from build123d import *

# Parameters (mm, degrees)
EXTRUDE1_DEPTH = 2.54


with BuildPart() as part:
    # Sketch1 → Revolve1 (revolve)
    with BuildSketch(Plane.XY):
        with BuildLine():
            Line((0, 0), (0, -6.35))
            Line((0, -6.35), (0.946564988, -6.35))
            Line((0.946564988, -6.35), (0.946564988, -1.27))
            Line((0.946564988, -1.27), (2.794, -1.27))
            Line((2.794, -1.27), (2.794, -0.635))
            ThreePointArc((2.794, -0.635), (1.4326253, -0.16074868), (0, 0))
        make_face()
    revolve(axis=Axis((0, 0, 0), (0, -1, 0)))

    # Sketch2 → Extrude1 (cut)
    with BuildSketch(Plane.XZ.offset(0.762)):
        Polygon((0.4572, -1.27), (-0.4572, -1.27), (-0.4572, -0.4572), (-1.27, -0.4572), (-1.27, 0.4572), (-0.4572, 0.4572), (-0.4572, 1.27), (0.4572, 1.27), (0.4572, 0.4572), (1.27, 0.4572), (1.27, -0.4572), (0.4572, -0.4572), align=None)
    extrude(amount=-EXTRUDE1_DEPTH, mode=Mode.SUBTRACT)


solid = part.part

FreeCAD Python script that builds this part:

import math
import FreeCAD as App
import Part
import Sketcher
Q = App.Units.Quantity

doc = App.newDocument("Part")
params = doc.addObject("Spreadsheet::Sheet", "Params")
for row, (alias, value) in enumerate([
    ("sketch1_height", "0.2 in"),
    ("sketch1_height2", "0.25 in"),
    ("sketch1_height3", "0.025 in"),
    ("revolution_angle", "360 deg"),
    ("sketch2_width", "0.036 in"),
    ("pocket1_length", "0.1 in"),
], start=1):
    params.set(f"A{row}", alias)
    params.set(f"B{row}", "=" + value)
    params.setAlias(f"B{row}", alias)

body = doc.addObject("PartDesign::Body", "Body")

# Sketch on XY plane
sketch1 = doc.addObject("Sketcher::SketchObject", "Sketch")
body.addObject(sketch1)
sketch1.AttachmentSupport = (doc.XY_Plane, [""])
sketch1.MapMode = "FlatFace"
sketch1.addGeometry([
    Part.LineSegment(App.Vector(0, 0, 0), App.Vector(0, -6.3, 0)),  # 0
    Part.LineSegment(App.Vector(0, -6.3, 0), App.Vector(0.9, -6.3, 0)),  # 1
    Part.LineSegment(App.Vector(0.9, -6.3, 0), App.Vector(0.9, -1.3, 0)),  # 2
    Part.LineSegment(App.Vector(0.9, -1.3, 0), App.Vector(2.8, -1.3, 0)),  # 3
    Part.LineSegment(App.Vector(2.8, -1.3, 0), App.Vector(2.8, -0.6, 0)),  # 4
    Part.ArcOfCircle(Part.Circle(App.Vector(0, -6.5, 0), App.Vector(0, 0, 1), 6.5), math.radians(64), math.radians(90)),  # 5
], False)
sketch1.addConstraint([
    Sketcher.Constraint("Coincident", 0, 2, 1, 1),
    Sketcher.Constraint("Coincident", 1, 2, 2, 1),
    Sketcher.Constraint("Coincident", 2, 2, 3, 1),
    Sketcher.Constraint("Coincident", 3, 2, 4, 1),
    Sketcher.Constraint("Coincident", 4, 2, 5, 1),
    Sketcher.Constraint("Coincident", 5, 2, 0, 1),
    Sketcher.Constraint("Vertical", 0),
    Sketcher.Constraint("Horizontal", 1),
    Sketcher.Constraint("Vertical", 2),
    Sketcher.Constraint("Horizontal", 3),
    Sketcher.Constraint("Vertical", 4),
    Sketcher.Constraint("Coincident", 5, 2, -1, 1),
    Sketcher.Constraint("PointOnObject", 5, 3, -2),
    Sketcher.Constraint("DistanceY", 2, 1, 2, 2, Q("0.2 in")),
    Sketcher.Constraint("DistanceY", 0, 2, 0, 1, Q("0.25 in")),
    Sketcher.Constraint("Radius", 5, Q("0.2545 in")),
    Sketcher.Constraint("DistanceY", 4, 1, 4, 2, Q("0.025 in")),
    Sketcher.Constraint("DistanceX", 1, 1, 1, 2, Q("0.946565 mm")),
])
sketch1.setExpression("Constraints[13]", "Params.sketch1_height")
sketch1.setExpression("Constraints[14]", "Params.sketch1_height2")
sketch1.setExpression("Constraints[16]", "Params.sketch1_height3")
revolution = doc.addObject("PartDesign::Revolution", "Revolution")
body.addObject(revolution)
revolution.Profile = sketch1
revolution.ReferenceAxis = (sketch1, ["V_Axis"])
revolution.setExpression("Angle", "Params.revolution_angle")

# Sketch on XZ plane
sketch2 = doc.addObject("Sketcher::SketchObject", "Sketch001")
body.addObject(sketch2)
sketch2.AttachmentSupport = (doc.XZ_Plane, [""])
sketch2.MapMode = "FlatFace"
sketch2.AttachmentOffset = App.Placement(App.Vector(0, 0, 0.03 * 25.4), App.Rotation())
sketch2.addGeometry([
    Part.LineSegment(App.Vector(-0.5, -1.3, 0), App.Vector(0.5, -1.3, 0)),  # 0
    Part.LineSegment(App.Vector(0.5, -1.3, 0), App.Vector(0.5, -0.5, 0)),  # 1
    Part.LineSegment(App.Vector(0.5, -0.5, 0), App.Vector(1.3, -0.5, 0)),  # 2
    Part.LineSegment(App.Vector(1.3, -0.5, 0), App.Vector(1.3, 0.5, 0)),  # 3
    Part.LineSegment(App.Vector(1.3, 0.5, 0), App.Vector(0.5, 0.5, 0)),  # 4
    Part.LineSegment(App.Vector(0.5, 0.5, 0), App.Vector(0.5, 1.3, 0)),  # 5
    Part.LineSegment(App.Vector(0.5, 1.3, 0), App.Vector(-0.5, 1.3, 0)),  # 6
    Part.LineSegment(App.Vector(-0.5, 1.3, 0), App.Vector(-0.5, 0.5, 0)),  # 7
    Part.LineSegment(App.Vector(-0.5, 0.5, 0), App.Vector(-1.3, 0.5, 0)),  # 8
    Part.LineSegment(App.Vector(-1.3, 0.5, 0), App.Vector(-1.3, -0.5, 0)),  # 9
    Part.LineSegment(App.Vector(-1.3, -0.5, 0), App.Vector(-0.5, -0.5, 0)),  # 10
    Part.LineSegment(App.Vector(-0.5, -0.5, 0), App.Vector(-0.5, -1.3, 0)),  # 11
], False)
sketch2.addConstraint([
    Sketcher.Constraint("Coincident", 0, 2, 1, 1),
    Sketcher.Constraint("Coincident", 1, 2, 2, 1),
    Sketcher.Constraint("Coincident", 2, 2, 3, 1),
    Sketcher.Constraint("Coincident", 3, 2, 4, 1),
    Sketcher.Constraint("Coincident", 4, 2, 5, 1),
    Sketcher.Constraint("Coincident", 5, 2, 6, 1),
    Sketcher.Constraint("Coincident", 6, 2, 7, 1),
    Sketcher.Constraint("Coincident", 7, 2, 8, 1),
    Sketcher.Constraint("Coincident", 8, 2, 9, 1),
    Sketcher.Constraint("Coincident", 9, 2, 10, 1),
    Sketcher.Constraint("Coincident", 10, 2, 11, 1),
    Sketcher.Constraint("Coincident", 11, 2, 0, 1),
    Sketcher.Constraint("Horizontal", 0),
    Sketcher.Constraint("Vertical", 1),
    Sketcher.Constraint("Horizontal", 2),
    Sketcher.Constraint("Vertical", 3),
    Sketcher.Constraint("Horizontal", 4),
    Sketcher.Constraint("Vertical", 5),
    Sketcher.Constraint("Horizontal", 6),
    Sketcher.Constraint("Vertical", 7),
    Sketcher.Constraint("Horizontal", 8),
    Sketcher.Constraint("Vertical", 9),
    Sketcher.Constraint("Horizontal", 10),
    Sketcher.Constraint("Vertical", 11),
    Sketcher.Constraint("Symmetric", 0, 2, 6, 2, -1, 1),
    Sketcher.Constraint("Symmetric", 2, 2, 8, 2, -1, 1),
    Sketcher.Constraint("Symmetric", 4, 2, 10, 2, -1, 1),
    Sketcher.Constraint("Symmetric", 4, 2, 7, 2, -2),
    Sketcher.Constraint("Equal", 10, 1),
    Sketcher.Constraint("Equal", 6, 3),
    Sketcher.Constraint("DistanceY", 0, 2, 5, 2, Q("0.1 in")),
    Sketcher.Constraint("DistanceX", 0, 1, 0, 2, Q("0.036 in")),
])
sketch2.setExpression("Constraints[31]", "Params.sketch2_width")
pocket1 = doc.addObject("PartDesign::Pocket", "Pocket")
body.addObject(pocket1)
pocket1.Profile = sketch2
pocket1.setExpression("Length", "Params.pocket1_length")

doc.recompute()
